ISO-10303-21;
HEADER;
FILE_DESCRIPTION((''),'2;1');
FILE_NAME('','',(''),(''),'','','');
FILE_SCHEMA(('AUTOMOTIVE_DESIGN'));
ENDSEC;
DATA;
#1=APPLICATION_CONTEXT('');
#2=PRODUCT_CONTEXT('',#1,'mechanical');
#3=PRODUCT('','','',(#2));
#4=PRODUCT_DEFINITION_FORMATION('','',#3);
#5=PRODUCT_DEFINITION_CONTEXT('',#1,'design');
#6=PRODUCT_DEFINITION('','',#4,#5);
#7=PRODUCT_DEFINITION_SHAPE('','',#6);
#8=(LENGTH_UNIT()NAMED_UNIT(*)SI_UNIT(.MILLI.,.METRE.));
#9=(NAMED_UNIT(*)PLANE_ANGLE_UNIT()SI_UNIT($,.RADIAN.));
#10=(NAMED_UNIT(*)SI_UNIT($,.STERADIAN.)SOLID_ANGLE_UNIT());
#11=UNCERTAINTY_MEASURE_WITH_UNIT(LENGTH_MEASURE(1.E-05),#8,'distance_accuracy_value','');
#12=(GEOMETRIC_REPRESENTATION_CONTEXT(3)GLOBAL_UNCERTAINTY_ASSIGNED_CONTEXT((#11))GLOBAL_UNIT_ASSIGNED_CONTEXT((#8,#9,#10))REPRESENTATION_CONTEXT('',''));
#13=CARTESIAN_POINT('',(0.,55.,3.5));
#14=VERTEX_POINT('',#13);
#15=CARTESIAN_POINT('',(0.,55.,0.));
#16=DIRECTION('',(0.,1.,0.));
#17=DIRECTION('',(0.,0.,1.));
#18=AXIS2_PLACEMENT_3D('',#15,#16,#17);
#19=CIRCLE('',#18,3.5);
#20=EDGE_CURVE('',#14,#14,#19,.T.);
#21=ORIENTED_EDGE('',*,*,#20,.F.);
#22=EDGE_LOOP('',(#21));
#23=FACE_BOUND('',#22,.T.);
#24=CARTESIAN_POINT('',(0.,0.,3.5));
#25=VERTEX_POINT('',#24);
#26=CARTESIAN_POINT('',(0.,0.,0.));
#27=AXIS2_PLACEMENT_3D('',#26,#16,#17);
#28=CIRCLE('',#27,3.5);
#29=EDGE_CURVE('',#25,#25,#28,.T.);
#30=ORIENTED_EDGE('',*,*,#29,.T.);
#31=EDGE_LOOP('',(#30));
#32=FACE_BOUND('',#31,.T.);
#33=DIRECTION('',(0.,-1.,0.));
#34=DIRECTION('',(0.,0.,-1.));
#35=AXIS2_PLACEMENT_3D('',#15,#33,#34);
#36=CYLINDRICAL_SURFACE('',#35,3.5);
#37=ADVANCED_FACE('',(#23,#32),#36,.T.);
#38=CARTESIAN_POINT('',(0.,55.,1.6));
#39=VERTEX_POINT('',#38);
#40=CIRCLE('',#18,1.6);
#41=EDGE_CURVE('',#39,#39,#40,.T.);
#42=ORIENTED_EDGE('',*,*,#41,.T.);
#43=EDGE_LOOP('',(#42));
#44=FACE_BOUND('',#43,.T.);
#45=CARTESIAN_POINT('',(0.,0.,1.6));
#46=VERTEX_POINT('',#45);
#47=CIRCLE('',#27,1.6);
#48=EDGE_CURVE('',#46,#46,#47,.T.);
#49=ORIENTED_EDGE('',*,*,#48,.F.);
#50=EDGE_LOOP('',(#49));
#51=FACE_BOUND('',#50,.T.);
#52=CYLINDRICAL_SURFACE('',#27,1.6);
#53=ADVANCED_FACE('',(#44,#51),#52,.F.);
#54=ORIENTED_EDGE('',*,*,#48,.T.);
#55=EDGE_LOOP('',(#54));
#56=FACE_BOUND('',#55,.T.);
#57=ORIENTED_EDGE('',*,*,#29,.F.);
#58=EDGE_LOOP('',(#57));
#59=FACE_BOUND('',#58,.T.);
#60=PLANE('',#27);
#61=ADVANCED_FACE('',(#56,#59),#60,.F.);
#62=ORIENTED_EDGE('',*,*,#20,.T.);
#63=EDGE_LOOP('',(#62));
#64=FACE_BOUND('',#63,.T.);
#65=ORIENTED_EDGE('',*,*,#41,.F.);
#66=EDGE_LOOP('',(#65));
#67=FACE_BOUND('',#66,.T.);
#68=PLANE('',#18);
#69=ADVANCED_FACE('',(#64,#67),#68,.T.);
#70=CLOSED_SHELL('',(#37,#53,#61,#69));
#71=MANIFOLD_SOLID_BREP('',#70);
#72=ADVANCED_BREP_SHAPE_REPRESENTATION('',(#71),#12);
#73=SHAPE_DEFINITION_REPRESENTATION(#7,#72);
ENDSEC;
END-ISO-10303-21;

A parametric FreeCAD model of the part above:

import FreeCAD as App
import Part
import Sketcher
Q = App.Units.Quantity

doc = App.newDocument("Part")
body = doc.addObject("PartDesign::Body", "Body")

sketch1 = body.newObject("Sketcher::SketchObject", "Sketch")
sketch1.AttachmentSupport = (doc.getObject("XZ_Plane"), [""])
sketch1.MapMode = "FlatFace"
sketch1.addGeometry(Part.Circle(App.Vector(0, 0, 0), App.Vector(0, 0, 1), 3.5), False)
sketch1.addConstraint(Sketcher.Constraint("Coincident", 0, 3, -1, 1))
sketch1.addConstraint(Sketcher.Constraint("Diameter", 0, Q("7 mm")))
pad1 = body.newObject("PartDesign::Pad", "Pad")
pad1.Profile = sketch1
pad1.Length = 55
pad1.Reversed = True

sketch2 = body.newObject("Sketcher::SketchObject", "Sketch001")
sketch2.AttachmentSupport = (doc.getObject("XZ_Plane"), [""])
sketch2.MapMode = "FlatFace"
sketch2.AttachmentOffset = App.Placement(App.Vector(0, 0, -55), App.Rotation())
sketch2.addGeometry(Part.Circle(App.Vector(0, 0, 0), App.Vector(0, 0, 1), 1.6), False)
sketch2.addConstraint(Sketcher.Constraint("Coincident", 0, 3, -1, 1))
sketch2.addConstraint(Sketcher.Constraint("Diameter", 0, Q("3.2 mm")))
pocket1 = body.newObject("PartDesign::Pocket", "Pocket")
pocket1.Profile = sketch2
pocket1.Type = "ThroughAll"
pocket1.Reversed = True

doc.recompute()
